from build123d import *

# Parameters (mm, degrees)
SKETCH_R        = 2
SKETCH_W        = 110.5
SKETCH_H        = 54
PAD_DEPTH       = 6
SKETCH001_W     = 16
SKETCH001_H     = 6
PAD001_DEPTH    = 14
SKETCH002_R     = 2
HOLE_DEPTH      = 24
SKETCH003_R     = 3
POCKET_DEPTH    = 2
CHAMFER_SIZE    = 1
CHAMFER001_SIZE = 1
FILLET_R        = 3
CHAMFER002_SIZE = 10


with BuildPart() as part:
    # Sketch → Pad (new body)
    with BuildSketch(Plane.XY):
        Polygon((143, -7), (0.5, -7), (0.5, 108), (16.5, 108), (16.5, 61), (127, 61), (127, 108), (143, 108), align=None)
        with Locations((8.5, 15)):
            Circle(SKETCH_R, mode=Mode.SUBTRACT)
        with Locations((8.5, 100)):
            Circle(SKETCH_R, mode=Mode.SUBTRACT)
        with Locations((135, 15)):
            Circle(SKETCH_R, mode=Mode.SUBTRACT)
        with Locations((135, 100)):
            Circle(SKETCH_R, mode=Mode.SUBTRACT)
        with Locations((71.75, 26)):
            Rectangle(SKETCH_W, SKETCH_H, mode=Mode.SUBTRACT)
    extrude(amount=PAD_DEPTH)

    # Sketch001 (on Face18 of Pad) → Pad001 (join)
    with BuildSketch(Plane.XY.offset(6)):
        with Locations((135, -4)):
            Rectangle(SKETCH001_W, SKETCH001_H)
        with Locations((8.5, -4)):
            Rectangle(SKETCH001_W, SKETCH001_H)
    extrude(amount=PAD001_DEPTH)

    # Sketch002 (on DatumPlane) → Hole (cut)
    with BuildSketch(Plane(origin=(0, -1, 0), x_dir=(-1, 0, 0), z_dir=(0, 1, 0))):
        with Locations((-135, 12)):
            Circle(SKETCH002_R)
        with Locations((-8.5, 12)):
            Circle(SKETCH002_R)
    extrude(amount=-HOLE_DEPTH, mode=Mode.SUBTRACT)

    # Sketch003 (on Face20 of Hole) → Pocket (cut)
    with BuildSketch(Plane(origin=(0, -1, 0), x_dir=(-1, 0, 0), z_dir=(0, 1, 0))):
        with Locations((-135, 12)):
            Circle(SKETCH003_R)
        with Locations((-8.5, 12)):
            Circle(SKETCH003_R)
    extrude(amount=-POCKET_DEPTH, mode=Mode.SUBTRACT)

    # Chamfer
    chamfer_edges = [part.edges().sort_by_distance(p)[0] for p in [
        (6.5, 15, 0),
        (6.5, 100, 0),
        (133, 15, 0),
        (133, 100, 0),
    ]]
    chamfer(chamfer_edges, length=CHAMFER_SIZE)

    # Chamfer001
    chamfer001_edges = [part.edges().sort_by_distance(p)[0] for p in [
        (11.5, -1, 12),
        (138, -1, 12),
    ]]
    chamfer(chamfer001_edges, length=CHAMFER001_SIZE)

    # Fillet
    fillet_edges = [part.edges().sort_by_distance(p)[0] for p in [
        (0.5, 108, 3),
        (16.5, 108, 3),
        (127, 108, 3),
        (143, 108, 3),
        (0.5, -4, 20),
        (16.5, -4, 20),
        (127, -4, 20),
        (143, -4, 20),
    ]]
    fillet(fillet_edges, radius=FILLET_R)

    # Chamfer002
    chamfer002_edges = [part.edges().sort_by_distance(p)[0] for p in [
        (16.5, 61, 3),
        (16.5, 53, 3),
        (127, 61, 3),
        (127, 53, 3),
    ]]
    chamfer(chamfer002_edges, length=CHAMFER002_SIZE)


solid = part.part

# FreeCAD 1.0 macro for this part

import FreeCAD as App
import Part
import Sketcher
Q = App.Units.Quantity


def edges_at(feature, points):
    """Names of the edges that pass closest to the given points."""
    edges = feature.Shape.Edges
    near = lambda p: min(range(len(edges)), key=lambda i: edges[i].distToShape(Part.Vertex(*p))[0])
    return sorted({f"Edge{near(p) + 1}" for p in points})

doc = App.newDocument("Part")
body = doc.addObject("PartDesign::Body", "Body")

# Sketch on XY plane
sketch1 = body.newObject("Sketcher::SketchObject", "Sketch")
sketch1.AttachmentSupport = (doc.getObject("XY_Plane"), [""])
sketch1.MapMode = "FlatFace"
sketch1.addGeometry(Part.LineSegment(App.Vector(0.5, -7, 0), App.Vector(143, -7, 0)), False)
sketch1.addGeometry(Part.LineSegment(App.Vector(143, -7, 0), App.Vector(143, 108, 0)), False)
sketch1.addGeometry(Part.LineSegment(App.Vector(143, 108, 0), App.Vector(127, 108, 0)), False)
sketch1.addGeometry(Part.LineSegment(App.Vector(127, 108, 0), App.Vector(127, 61, 0)), False)
sketch1.addGeometry(Part.LineSegment(App.Vector(127, 61, 0), App.Vector(16.5, 61, 0)), False)
sketch1.addGeometry(Part.LineSegment(App.Vector(16.5, 61, 0), App.Vector(16.5, 108, 0)), False)
sketch1.addGeometry(Part.LineSegment(App.Vector(16.5, 108, 0), App.Vector(0.5, 108, 0)), False)
sketch1.addGeometry(Part.LineSegment(App.Vector(0.5, 108, 0), App.Vector(0.5, -7, 0)), False)
sketch1.addGeometry(Part.Circle(App.Vector(135, 15, 0), App.Vector(0, 0, 1), 2), False)
sketch1.addGeometry(Part.Circle(App.Vector(8.5, 15, 0), App.Vector(0, 0, 1), 2), False)
sketch1.addGeometry(Part.LineSegment(App.Vector(16.5, -1, 0), App.Vector(16.5, 53, 0)), False)
sketch1.addGeometry(Part.LineSegment(App.Vector(16.5, 53, 0), App.Vector(127, 53, 0)), False)
sketch1.addGeometry(Part.LineSegment(App.Vector(127, 53, 0), App.Vector(127, -1, 0)), False)
sketch1.addGeometry(Part.LineSegment(App.Vector(127, -1, 0), App.Vector(16.5, -1, 0)), False)
sketch1.addGeometry(Part.Circle(App.Vector(135, 100, 0), App.Vector(0, 0, 1), 2), False)
sketch1.addGeometry(Part.Circle(App.Vector(8.5, 100, 0), App.Vector(0, 0, 1), 2), False)
sketch1.addConstraint(Sketcher.Constraint("Coincident", 0, 2, 1, 1))
sketch1.addConstraint(Sketcher.Constraint("Coincident", 1, 2, 2, 1))
sketch1.addConstraint(Sketcher.Constraint("Coincident", 2, 2, 3, 1))
sketch1.addConstraint(Sketcher.Constraint("Coincident", 3, 2, 4, 1))
sketch1.addConstraint(Sketcher.Constraint("Coincident", 4, 2, 5, 1))
sketch1.addConstraint(Sketcher.Constraint("Coincident", 5, 2, 6, 1))
sketch1.addConstraint(Sketcher.Constraint("Coincident", 6, 2, 7, 1))
sketch1.addConstraint(Sketcher.Constraint("Coincident", 7, 2, 0, 1))
sketch1.addConstraint(Sketcher.Constraint("Coincident", 10, 2, 11, 1))
sketch1.addConstraint(Sketcher.Constraint("Coincident", 11, 2, 12, 1))
sketch1.addConstraint(Sketcher.Constraint("Coincident", 12, 2, 13, 1))
sketch1.addConstraint(Sketcher.Constraint("Coincident", 13, 2, 10, 1))
sketch1.addConstraint(Sketcher.Constraint("Horizontal", 0))
sketch1.addConstraint(Sketcher.Constraint("Vertical", 1))
sketch1.addConstraint(Sketcher.Constraint("Horizontal", 2))
sketch1.addConstraint(Sketcher.Constraint("Vertical", 3))
sketch1.addConstraint(Sketcher.Constraint("Horizontal", 4))
sketch1.addConstraint(Sketcher.Constraint("Vertical", 5))
sketch1.addConstraint(Sketcher.Constraint("Horizontal", 6))
sketch1.addConstraint(Sketcher.Constraint("Vertical", 7))
sketch1.addConstraint(Sketcher.Constraint("Vertical", 10))
sketch1.addConstraint(Sketcher.Constraint("Horizontal", 11))
sketch1.addConstraint(Sketcher.Constraint("Vertical", 12))
sketch1.addConstraint(Sketcher.Constraint("Horizontal", 13))
sketch1.addConstraint(Sketcher.Constraint("Equal", 8, 9))
sketch1.addConstraint(Sketcher.Constraint("Equal", 9, 14))
sketch1.addConstraint(Sketcher.Constraint("Equal", 14, 15))
sketch1.addConstraint(Sketcher.Constraint("Horizontal", 8, 3, 9, 3))
sketch1.addConstraint(Sketcher.Constraint("Horizontal", 14, 3, 15, 3))
sketch1.addConstraint(Sketcher.Constraint("Horizontal", 2, 2, 5, 2))
sketch1.addConstraint(Sketcher.Constraint("Vertical", 8, 3, 14, 3))
sketch1.addConstraint(Sketcher.Constraint("Vertical", 9, 3, 15, 3))
sketch1.addConstraint(Sketcher.Constraint("Vertical", 5, 2, 10, 2))
sketch1.addConstraint(Sketcher.Constraint("Vertical", 3, 2, 11, 2))
sketch1.addConstraint(Sketcher.Constraint("Equal", 2, 6))
sketch1.addConstraint(Sketcher.Constraint("Diameter", 8, Q("4 mm")))
sketch1.addConstraint(Sketcher.Constraint("DistanceX", 2, 2, 2, 1, Q("16 mm")))
sketch1.addConstraint(Sketcher.Constraint("DistanceY", 1, 1, 1, 2, Q("115 mm")))
sketch1.addConstraint(Sketcher.Constraint("DistanceY", 3, 2, 3, 1, Q("47 mm")))
sketch1.addConstraint(Sketcher.Constraint("DistanceY", 10, 1, 10, 2, Q("54 mm")))
sketch1.addConstraint(Sketcher.Constraint("DistanceX", 0, 1, 0, 2, Q("142.5 mm")))
sketch1.addConstraint(Sketcher.Constraint("DistanceX", -1, 1, 8, 3, Q("135 mm")))
sketch1.addConstraint(Sketcher.Constraint("DistanceY", -1, 1, 8, 3, Q("15 mm")))
sketch1.addConstraint(Sketcher.Constraint("DistanceY", -1, 1, 14, 3, Q("100 mm")))
sketch1.addConstraint(Sketcher.Constraint("DistanceX", -1, 1, 0, 2, Q("143 mm")))
sketch1.addConstraint(Sketcher.Constraint("DistanceY", 0, 2, -1, 1, Q("7 mm")))
sketch1.addConstraint(Sketcher.Constraint("DistanceY", -1, 1, 10, 2, Q("53 mm")))
sketch1.addConstraint(Sketcher.Constraint("DistanceX", 15, 3, 4, 2, Q("8 mm")))
pad1 = body.newObject("PartDesign::Pad", "Pad")
pad1.Profile = sketch1
pad1.Length = 6

# Sketch on XY plane
sketch2 = body.newObject("Sketcher::SketchObject", "Sketch001")
sketch2.AttachmentSupport = (doc.getObject("XY_Plane"), [""])
sketch2.MapMode = "FlatFace"
sketch2.AttachmentOffset = App.Placement(App.Vector(0, 0, 6), App.Rotation())
sketch2.addGeometry(Part.LineSegment(App.Vector(127, -1, 0), App.Vector(127, -7, 0)), False)
sketch2.addGeometry(Part.LineSegment(App.Vector(127, -7, 0), App.Vector(143, -7, 0)), False)
sketch2.addGeometry(Part.LineSegment(App.Vector(143, -7, 0), App.Vector(143, -1, 0)), False)
sketch2.addGeometry(Part.LineSegment(App.Vector(143, -1, 0), App.Vector(127, -1, 0)), False)
sketch2.addGeometry(Part.LineSegment(App.Vector(0, -1, 0), App.Vector(0, -7, 0)), False)
sketch2.addGeometry(Part.LineSegment(App.Vector(0, -7, 0), App.Vector(16, -7, 0)), False)
sketch2.addGeometry(Part.LineSegment(App.Vector(16, -7, 0), App.Vector(16, -1, 0)), False)
sketch2.addGeometry(Part.LineSegment(App.Vector(16, -1, 0), App.Vector(0, -1, 0)), False)
sketch2.addConstraint(Sketcher.Constraint("Coincident", 0, 2, 1, 1))
sketch2.addConstraint(Sketcher.Constraint("Coincident", 1, 2, 2, 1))
sketch2.addConstraint(Sketcher.Constraint("Coincident", 2, 2, 3, 1))
sketch2.addConstraint(Sketcher.Constraint("Coincident", 3, 2, 0, 1))
sketch2.addConstraint(Sketcher.Constraint("Coincident", 4, 2, 5, 1))
sketch2.addConstraint(Sketcher.Constraint("Coincident", 5, 2, 6, 1))
sketch2.addConstraint(Sketcher.Constraint("Coincident", 6, 2, 7, 1))
sketch2.addConstraint(Sketcher.Constraint("Coincident", 7, 2, 4, 1))
sketch2.addConstraint(Sketcher.Constraint("Vertical", 0))
sketch2.addConstraint(Sketcher.Constraint("Horizontal", 1))
sketch2.addConstraint(Sketcher.Constraint("Vertical", 2))
sketch2.addConstraint(Sketcher.Constraint("Horizontal", 3))
sketch2.addConstraint(Sketcher.Constraint("Vertical", 4))
sketch2.addConstraint(Sketcher.Constraint("Horizontal", 5))
sketch2.addConstraint(Sketcher.Constraint("Vertical", 6))
sketch2.addConstraint(Sketcher.Constraint("Horizontal", 7))
sketch2.addConstraint(Sketcher.Constraint("Horizontal", 1, 2, 4, 2))
sketch2.addConstraint(Sketcher.Constraint("Horizontal", 3, 2, 6, 2))
sketch2.addConstraint(Sketcher.Constraint("Equal", 3, 5))
sketch2.addConstraint(Sketcher.Constraint("DistanceX", 1, 1, 1, 2, Q("16 mm")))
sketch2.addConstraint(Sketcher.Constraint("DistanceY", 0, 2, 0, 1, Q("6 mm")))
sketch2.addConstraint(Sketcher.Constraint("DistanceX", -1, 1, 0, 2, Q("127 mm")))
sketch2.addConstraint(Sketcher.Constraint("DistanceY", 0, 2, -1, 1, Q("7 mm")))
sketch2.addConstraint(Sketcher.Constraint("DistanceX", -1, 1, 4, 2, Q("0.5 mm")))
pad2 = body.newObject("PartDesign::Pad", "Pad001")
pad2.Profile = sketch2
pad2.Length = 14

# Sketch on XZ plane
sketch3 = body.newObject("Sketcher::SketchObject", "Sketch002")
sketch3.AttachmentSupport = (doc.getObject("XZ_Plane"), [""])
sketch3.MapMode = "FlatFace"
sketch3.AttachmentOffset = App.Placement(App.Vector(0, 0, 1), App.Rotation())
sketch3.addGeometry(Part.Circle(App.Vector(135, 12, 0), App.Vector(0, 0, 1), 2), False)
sketch3.addGeometry(Part.Circle(App.Vector(8.5, 12, 0), App.Vector(0, 0, 1), 2), False)
sketch3.addConstraint(Sketcher.Constraint("Equal", 0, 1))
sketch3.addConstraint(Sketcher.Constraint("Horizontal", 0, 3, 1, 3))
sketch3.addConstraint(Sketcher.Constraint("Diameter", 0, Q("4 mm")))
sketch3.addConstraint(Sketcher.Constraint("DistanceX", -1, 1, 0, 3, Q("135 mm")))
sketch3.addConstraint(Sketcher.Constraint("DistanceY", -1, 1, 0, 3, Q("12 mm")))
sketch3.addConstraint(Sketcher.Constraint("DistanceX", -1, 1, 1, 3, Q("8.5 mm")))
pocket1 = body.newObject("PartDesign::Pocket", "Pocket")
pocket1.Profile = sketch3
pocket1.Length = 24
pocket1.Reversed = True

# Sketch on XZ plane
sketch4 = body.newObject("Sketcher::SketchObject", "Sketch003")
sketch4.AttachmentSupport = (doc.getObject("XZ_Plane"), [""])
sketch4.MapMode = "FlatFace"
sketch4.AttachmentOffset = App.Placement(App.Vector(0, 0, 1), App.Rotation())
sketch4.addGeometry(Part.Circle(App.Vector(135, 12, 0), App.Vector(0, 0, 1), 3), False)
sketch4.addGeometry(Part.Circle(App.Vector(8.5, 12, 0), App.Vector(0, 0, 1), 3), False)
sketch4.addConstraint(Sketcher.Constraint("Equal", 0, 1))
sketch4.addConstraint(Sketcher.Constraint("Horizontal", 0, 3, 1, 3))
sketch4.addConstraint(Sketcher.Constraint("Diameter", 0, Q("6 mm")))
sketch4.addConstraint(Sketcher.Constraint("DistanceX", -1, 1, 0, 3, Q("135 mm")))
sketch4.addConstraint(Sketcher.Constraint("DistanceY", -1, 1, 0, 3, Q("12 mm")))
sketch4.addConstraint(Sketcher.Constraint("DistanceX", -1, 1, 1, 3, Q("8.5 mm")))
pocket2 = body.newObject("PartDesign::Pocket", "Pocket001")
pocket2.Profile = sketch4
pocket2.Length = 2
pocket2.Reversed = True
doc.recompute()

chamfer = body.newObject("PartDesign::Chamfer", "Chamfer")
chamfer.Base = (pocket2, edges_at(pocket2, [
    (6.5, 15, 0),
    (6.5, 100, 0),
    (133, 15, 0),
    (133, 100, 0),
]))
chamfer.Size = 1
doc.recompute()

chamfer2 = body.newObject("PartDesign::Chamfer", "Chamfer001")
chamfer2.Base = (chamfer, edges_at(chamfer, [(11.5, -1, 12), (138, -1, 12)]))
chamfer2.Size = 1
doc.recompute()

fillet = body.newObject("PartDesign::Fillet", "Fillet")
fillet.Base = (chamfer2, edges_at(chamfer2, [
    (0.5, 108, 3),
    (16.5, 108, 3),
    (127, 108, 3),
    (143, 108, 3),
    (0.5, -4, 20),
    (16.5, -4, 20),
    (127, -4, 20),
    (143, -4, 20),
]))
fillet.Radius = 3
doc.recompute()

chamfer3 = body.newObject("PartDesign::Chamfer", "Chamfer002")
chamfer3.Base = (fillet, edges_at(fillet, [
    (16.5, 61, 3),
    (16.5, 53, 3),
    (127, 61, 3),
    (127, 53, 3),
]))
chamfer3.Size = 10

doc.recompute()
